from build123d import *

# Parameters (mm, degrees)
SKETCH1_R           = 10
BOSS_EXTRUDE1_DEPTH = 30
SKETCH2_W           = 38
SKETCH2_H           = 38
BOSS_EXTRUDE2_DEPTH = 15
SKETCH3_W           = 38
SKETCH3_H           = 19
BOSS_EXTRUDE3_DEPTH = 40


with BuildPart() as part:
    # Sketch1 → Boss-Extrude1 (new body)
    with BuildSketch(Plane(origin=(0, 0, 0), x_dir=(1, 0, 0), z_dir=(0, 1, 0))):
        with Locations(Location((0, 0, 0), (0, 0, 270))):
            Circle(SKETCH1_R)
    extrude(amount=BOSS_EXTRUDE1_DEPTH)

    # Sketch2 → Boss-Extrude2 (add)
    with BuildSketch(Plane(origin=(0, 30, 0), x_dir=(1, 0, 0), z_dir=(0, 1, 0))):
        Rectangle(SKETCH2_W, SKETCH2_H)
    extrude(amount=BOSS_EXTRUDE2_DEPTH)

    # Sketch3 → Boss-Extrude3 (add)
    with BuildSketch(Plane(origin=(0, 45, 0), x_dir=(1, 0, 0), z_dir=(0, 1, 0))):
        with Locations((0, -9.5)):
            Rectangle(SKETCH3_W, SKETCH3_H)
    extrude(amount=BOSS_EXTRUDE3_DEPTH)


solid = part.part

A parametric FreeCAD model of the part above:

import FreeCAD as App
import Part
import Sketcher

V = App.Vector
Q = App.Units.Quantity

doc = App.newDocument("Part")
params = doc.addObject("Spreadsheet::Sheet", "Params")
for row, (alias, value) in enumerate([
    ("sketch1_diameter", "20 mm"),
    ("pad1_length", "30 mm"),
    ("sketch2_width", "38 mm"),
    ("pad2_length", "15 mm"),
    ("sketch3_width", "38 mm"),
    ("sketch3_height", "19 mm"),
    ("pad3_length", "40 mm"),
], start=1):
    params.set(f"A{row}", alias)
    params.set(f"B{row}", "=" + value)
    params.setAlias(f"B{row}", alias)

body = doc.addObject("PartDesign::Body", "Body")

sketch1 = doc.addObject("Sketcher::SketchObject", "Sketch")
body.addObject(sketch1)
sketch1.AttachmentSupport = (doc.XZ_Plane, [""])
sketch1.MapMode = "FlatFace"
sketch1.addGeometry(Part.Circle(V(0, 0, 0), V(0, 0, 1), 10), False)
sketch1.addConstraint([
    Sketcher.Constraint("Coincident", 0, 3, -1, 1),
    Sketcher.Constraint("Diameter", 0, Q("20 mm")),
])
sketch1.setExpression("Constraints[1]", "Params.sketch1_diameter")
pad1 = doc.addObject("PartDesign::Pad", "Pad")
body.addObject(pad1)
pad1.Profile = sketch1
pad1.setExpression("Length", "Params.pad1_length")
pad1.Reversed = True

sketch2 = doc.addObject("Sketcher::SketchObject", "Sketch001")
body.addObject(sketch2)
sketch2.AttachmentSupport = (doc.XZ_Plane, [""])
sketch2.MapMode = "FlatFace"
sketch2.AttachmentOffset = App.Placement(V(0, 0, -30), App.Rotation())
sketch2.addGeometry([
    Part.LineSegment(V(-19, -19, 0), V(-19, 19, 0)),
    Part.LineSegment(V(-19, 19, 0), V(19, 19, 0)),
    Part.LineSegment(V(19, 19, 0), V(19, -19, 0)),
    Part.LineSegment(V(19, -19, 0), V(-19, -19, 0)),
], False)
sketch2.addConstraint([
    Sketcher.Constraint("Coincident", 0, 2, 1, 1),
    Sketcher.Constraint("Coincident", 1, 2, 2, 1),
    Sketcher.Constraint("Coincident", 2, 2, 3, 1),
    Sketcher.Constraint("Coincident", 3, 2, 0, 1),
    Sketcher.Constraint("Vertical", 0),
    Sketcher.Constraint("Horizontal", 1),
    Sketcher.Constraint("Vertical", 2),
    Sketcher.Constraint("Horizontal", 3),
    Sketcher.Constraint("Symmetric", 0, 2, 2, 2, -1, 1),
    Sketcher.Constraint("Equal", 3, 0),
    Sketcher.Constraint("DistanceX", 1, 1, 1, 2, Q("38 mm")),
])
sketch2.setExpression("Constraints[10]", "Params.sketch2_width")
pad2 = doc.addObject("PartDesign::Pad", "Pad001")
body.addObject(pad2)
pad2.Profile = sketch2
pad2.setExpression("Length", "Params.pad2_length")
pad2.Reversed = True

sketch3 = doc.addObject("Sketcher::SketchObject", "Sketch002")
body.addObject(sketch3)
sketch3.AttachmentSupport = (doc.XZ_Plane, [""])
sketch3.MapMode = "FlatFace"
sketch3.AttachmentOffset = App.Placement(V(0, 0, -45), App.Rotation())
sketch3.addGeometry([
    Part.LineSegment(V(-19, 0, 0), V(-19, 19, 0)),
    Part.LineSegment(V(-19, 19, 0), V(19, 19, 0)),
    Part.LineSegment(V(19, 19, 0), V(19, 0, 0)),
    Part.LineSegment(V(19, 0, 0), V(-19, 0, 0)),
], False)
sketch3.addConstraint([
    Sketcher.Constraint("Coincident", 0, 2, 1, 1),
    Sketcher.Constraint("Coincident", 1, 2, 2, 1),
    Sketcher.Constraint("Coincident", 2, 2, 3, 1),
    Sketcher.Constraint("Coincident", 3, 2, 0, 1),
    Sketcher.Constraint("Vertical", 0),
    Sketcher.Constraint("Horizontal", 1),
    Sketcher.Constraint("Vertical", 2),
    Sketcher.Constraint("Horizontal", 3),
    Sketcher.Constraint("Symmetric", 2, 2, 3, 2, -1, 1),
    Sketcher.Constraint("DistanceX", 1, 1, 1, 2, Q("38 mm")),
    Sketcher.Constraint("DistanceY", 0, 1, 0, 2, Q("19 mm")),
])
sketch3.setExpression("Constraints[9]", "Params.sketch3_width")
sketch3.setExpression("Constraints[10]", "Params.sketch3_height")
pad3 = doc.addObject("PartDesign::Pad", "Pad002")
body.addObject(pad3)
pad3.Profile = sketch3
pad3.setExpression("Length", "Params.pad3_length")
pad3.Reversed = True

doc.recompute()
